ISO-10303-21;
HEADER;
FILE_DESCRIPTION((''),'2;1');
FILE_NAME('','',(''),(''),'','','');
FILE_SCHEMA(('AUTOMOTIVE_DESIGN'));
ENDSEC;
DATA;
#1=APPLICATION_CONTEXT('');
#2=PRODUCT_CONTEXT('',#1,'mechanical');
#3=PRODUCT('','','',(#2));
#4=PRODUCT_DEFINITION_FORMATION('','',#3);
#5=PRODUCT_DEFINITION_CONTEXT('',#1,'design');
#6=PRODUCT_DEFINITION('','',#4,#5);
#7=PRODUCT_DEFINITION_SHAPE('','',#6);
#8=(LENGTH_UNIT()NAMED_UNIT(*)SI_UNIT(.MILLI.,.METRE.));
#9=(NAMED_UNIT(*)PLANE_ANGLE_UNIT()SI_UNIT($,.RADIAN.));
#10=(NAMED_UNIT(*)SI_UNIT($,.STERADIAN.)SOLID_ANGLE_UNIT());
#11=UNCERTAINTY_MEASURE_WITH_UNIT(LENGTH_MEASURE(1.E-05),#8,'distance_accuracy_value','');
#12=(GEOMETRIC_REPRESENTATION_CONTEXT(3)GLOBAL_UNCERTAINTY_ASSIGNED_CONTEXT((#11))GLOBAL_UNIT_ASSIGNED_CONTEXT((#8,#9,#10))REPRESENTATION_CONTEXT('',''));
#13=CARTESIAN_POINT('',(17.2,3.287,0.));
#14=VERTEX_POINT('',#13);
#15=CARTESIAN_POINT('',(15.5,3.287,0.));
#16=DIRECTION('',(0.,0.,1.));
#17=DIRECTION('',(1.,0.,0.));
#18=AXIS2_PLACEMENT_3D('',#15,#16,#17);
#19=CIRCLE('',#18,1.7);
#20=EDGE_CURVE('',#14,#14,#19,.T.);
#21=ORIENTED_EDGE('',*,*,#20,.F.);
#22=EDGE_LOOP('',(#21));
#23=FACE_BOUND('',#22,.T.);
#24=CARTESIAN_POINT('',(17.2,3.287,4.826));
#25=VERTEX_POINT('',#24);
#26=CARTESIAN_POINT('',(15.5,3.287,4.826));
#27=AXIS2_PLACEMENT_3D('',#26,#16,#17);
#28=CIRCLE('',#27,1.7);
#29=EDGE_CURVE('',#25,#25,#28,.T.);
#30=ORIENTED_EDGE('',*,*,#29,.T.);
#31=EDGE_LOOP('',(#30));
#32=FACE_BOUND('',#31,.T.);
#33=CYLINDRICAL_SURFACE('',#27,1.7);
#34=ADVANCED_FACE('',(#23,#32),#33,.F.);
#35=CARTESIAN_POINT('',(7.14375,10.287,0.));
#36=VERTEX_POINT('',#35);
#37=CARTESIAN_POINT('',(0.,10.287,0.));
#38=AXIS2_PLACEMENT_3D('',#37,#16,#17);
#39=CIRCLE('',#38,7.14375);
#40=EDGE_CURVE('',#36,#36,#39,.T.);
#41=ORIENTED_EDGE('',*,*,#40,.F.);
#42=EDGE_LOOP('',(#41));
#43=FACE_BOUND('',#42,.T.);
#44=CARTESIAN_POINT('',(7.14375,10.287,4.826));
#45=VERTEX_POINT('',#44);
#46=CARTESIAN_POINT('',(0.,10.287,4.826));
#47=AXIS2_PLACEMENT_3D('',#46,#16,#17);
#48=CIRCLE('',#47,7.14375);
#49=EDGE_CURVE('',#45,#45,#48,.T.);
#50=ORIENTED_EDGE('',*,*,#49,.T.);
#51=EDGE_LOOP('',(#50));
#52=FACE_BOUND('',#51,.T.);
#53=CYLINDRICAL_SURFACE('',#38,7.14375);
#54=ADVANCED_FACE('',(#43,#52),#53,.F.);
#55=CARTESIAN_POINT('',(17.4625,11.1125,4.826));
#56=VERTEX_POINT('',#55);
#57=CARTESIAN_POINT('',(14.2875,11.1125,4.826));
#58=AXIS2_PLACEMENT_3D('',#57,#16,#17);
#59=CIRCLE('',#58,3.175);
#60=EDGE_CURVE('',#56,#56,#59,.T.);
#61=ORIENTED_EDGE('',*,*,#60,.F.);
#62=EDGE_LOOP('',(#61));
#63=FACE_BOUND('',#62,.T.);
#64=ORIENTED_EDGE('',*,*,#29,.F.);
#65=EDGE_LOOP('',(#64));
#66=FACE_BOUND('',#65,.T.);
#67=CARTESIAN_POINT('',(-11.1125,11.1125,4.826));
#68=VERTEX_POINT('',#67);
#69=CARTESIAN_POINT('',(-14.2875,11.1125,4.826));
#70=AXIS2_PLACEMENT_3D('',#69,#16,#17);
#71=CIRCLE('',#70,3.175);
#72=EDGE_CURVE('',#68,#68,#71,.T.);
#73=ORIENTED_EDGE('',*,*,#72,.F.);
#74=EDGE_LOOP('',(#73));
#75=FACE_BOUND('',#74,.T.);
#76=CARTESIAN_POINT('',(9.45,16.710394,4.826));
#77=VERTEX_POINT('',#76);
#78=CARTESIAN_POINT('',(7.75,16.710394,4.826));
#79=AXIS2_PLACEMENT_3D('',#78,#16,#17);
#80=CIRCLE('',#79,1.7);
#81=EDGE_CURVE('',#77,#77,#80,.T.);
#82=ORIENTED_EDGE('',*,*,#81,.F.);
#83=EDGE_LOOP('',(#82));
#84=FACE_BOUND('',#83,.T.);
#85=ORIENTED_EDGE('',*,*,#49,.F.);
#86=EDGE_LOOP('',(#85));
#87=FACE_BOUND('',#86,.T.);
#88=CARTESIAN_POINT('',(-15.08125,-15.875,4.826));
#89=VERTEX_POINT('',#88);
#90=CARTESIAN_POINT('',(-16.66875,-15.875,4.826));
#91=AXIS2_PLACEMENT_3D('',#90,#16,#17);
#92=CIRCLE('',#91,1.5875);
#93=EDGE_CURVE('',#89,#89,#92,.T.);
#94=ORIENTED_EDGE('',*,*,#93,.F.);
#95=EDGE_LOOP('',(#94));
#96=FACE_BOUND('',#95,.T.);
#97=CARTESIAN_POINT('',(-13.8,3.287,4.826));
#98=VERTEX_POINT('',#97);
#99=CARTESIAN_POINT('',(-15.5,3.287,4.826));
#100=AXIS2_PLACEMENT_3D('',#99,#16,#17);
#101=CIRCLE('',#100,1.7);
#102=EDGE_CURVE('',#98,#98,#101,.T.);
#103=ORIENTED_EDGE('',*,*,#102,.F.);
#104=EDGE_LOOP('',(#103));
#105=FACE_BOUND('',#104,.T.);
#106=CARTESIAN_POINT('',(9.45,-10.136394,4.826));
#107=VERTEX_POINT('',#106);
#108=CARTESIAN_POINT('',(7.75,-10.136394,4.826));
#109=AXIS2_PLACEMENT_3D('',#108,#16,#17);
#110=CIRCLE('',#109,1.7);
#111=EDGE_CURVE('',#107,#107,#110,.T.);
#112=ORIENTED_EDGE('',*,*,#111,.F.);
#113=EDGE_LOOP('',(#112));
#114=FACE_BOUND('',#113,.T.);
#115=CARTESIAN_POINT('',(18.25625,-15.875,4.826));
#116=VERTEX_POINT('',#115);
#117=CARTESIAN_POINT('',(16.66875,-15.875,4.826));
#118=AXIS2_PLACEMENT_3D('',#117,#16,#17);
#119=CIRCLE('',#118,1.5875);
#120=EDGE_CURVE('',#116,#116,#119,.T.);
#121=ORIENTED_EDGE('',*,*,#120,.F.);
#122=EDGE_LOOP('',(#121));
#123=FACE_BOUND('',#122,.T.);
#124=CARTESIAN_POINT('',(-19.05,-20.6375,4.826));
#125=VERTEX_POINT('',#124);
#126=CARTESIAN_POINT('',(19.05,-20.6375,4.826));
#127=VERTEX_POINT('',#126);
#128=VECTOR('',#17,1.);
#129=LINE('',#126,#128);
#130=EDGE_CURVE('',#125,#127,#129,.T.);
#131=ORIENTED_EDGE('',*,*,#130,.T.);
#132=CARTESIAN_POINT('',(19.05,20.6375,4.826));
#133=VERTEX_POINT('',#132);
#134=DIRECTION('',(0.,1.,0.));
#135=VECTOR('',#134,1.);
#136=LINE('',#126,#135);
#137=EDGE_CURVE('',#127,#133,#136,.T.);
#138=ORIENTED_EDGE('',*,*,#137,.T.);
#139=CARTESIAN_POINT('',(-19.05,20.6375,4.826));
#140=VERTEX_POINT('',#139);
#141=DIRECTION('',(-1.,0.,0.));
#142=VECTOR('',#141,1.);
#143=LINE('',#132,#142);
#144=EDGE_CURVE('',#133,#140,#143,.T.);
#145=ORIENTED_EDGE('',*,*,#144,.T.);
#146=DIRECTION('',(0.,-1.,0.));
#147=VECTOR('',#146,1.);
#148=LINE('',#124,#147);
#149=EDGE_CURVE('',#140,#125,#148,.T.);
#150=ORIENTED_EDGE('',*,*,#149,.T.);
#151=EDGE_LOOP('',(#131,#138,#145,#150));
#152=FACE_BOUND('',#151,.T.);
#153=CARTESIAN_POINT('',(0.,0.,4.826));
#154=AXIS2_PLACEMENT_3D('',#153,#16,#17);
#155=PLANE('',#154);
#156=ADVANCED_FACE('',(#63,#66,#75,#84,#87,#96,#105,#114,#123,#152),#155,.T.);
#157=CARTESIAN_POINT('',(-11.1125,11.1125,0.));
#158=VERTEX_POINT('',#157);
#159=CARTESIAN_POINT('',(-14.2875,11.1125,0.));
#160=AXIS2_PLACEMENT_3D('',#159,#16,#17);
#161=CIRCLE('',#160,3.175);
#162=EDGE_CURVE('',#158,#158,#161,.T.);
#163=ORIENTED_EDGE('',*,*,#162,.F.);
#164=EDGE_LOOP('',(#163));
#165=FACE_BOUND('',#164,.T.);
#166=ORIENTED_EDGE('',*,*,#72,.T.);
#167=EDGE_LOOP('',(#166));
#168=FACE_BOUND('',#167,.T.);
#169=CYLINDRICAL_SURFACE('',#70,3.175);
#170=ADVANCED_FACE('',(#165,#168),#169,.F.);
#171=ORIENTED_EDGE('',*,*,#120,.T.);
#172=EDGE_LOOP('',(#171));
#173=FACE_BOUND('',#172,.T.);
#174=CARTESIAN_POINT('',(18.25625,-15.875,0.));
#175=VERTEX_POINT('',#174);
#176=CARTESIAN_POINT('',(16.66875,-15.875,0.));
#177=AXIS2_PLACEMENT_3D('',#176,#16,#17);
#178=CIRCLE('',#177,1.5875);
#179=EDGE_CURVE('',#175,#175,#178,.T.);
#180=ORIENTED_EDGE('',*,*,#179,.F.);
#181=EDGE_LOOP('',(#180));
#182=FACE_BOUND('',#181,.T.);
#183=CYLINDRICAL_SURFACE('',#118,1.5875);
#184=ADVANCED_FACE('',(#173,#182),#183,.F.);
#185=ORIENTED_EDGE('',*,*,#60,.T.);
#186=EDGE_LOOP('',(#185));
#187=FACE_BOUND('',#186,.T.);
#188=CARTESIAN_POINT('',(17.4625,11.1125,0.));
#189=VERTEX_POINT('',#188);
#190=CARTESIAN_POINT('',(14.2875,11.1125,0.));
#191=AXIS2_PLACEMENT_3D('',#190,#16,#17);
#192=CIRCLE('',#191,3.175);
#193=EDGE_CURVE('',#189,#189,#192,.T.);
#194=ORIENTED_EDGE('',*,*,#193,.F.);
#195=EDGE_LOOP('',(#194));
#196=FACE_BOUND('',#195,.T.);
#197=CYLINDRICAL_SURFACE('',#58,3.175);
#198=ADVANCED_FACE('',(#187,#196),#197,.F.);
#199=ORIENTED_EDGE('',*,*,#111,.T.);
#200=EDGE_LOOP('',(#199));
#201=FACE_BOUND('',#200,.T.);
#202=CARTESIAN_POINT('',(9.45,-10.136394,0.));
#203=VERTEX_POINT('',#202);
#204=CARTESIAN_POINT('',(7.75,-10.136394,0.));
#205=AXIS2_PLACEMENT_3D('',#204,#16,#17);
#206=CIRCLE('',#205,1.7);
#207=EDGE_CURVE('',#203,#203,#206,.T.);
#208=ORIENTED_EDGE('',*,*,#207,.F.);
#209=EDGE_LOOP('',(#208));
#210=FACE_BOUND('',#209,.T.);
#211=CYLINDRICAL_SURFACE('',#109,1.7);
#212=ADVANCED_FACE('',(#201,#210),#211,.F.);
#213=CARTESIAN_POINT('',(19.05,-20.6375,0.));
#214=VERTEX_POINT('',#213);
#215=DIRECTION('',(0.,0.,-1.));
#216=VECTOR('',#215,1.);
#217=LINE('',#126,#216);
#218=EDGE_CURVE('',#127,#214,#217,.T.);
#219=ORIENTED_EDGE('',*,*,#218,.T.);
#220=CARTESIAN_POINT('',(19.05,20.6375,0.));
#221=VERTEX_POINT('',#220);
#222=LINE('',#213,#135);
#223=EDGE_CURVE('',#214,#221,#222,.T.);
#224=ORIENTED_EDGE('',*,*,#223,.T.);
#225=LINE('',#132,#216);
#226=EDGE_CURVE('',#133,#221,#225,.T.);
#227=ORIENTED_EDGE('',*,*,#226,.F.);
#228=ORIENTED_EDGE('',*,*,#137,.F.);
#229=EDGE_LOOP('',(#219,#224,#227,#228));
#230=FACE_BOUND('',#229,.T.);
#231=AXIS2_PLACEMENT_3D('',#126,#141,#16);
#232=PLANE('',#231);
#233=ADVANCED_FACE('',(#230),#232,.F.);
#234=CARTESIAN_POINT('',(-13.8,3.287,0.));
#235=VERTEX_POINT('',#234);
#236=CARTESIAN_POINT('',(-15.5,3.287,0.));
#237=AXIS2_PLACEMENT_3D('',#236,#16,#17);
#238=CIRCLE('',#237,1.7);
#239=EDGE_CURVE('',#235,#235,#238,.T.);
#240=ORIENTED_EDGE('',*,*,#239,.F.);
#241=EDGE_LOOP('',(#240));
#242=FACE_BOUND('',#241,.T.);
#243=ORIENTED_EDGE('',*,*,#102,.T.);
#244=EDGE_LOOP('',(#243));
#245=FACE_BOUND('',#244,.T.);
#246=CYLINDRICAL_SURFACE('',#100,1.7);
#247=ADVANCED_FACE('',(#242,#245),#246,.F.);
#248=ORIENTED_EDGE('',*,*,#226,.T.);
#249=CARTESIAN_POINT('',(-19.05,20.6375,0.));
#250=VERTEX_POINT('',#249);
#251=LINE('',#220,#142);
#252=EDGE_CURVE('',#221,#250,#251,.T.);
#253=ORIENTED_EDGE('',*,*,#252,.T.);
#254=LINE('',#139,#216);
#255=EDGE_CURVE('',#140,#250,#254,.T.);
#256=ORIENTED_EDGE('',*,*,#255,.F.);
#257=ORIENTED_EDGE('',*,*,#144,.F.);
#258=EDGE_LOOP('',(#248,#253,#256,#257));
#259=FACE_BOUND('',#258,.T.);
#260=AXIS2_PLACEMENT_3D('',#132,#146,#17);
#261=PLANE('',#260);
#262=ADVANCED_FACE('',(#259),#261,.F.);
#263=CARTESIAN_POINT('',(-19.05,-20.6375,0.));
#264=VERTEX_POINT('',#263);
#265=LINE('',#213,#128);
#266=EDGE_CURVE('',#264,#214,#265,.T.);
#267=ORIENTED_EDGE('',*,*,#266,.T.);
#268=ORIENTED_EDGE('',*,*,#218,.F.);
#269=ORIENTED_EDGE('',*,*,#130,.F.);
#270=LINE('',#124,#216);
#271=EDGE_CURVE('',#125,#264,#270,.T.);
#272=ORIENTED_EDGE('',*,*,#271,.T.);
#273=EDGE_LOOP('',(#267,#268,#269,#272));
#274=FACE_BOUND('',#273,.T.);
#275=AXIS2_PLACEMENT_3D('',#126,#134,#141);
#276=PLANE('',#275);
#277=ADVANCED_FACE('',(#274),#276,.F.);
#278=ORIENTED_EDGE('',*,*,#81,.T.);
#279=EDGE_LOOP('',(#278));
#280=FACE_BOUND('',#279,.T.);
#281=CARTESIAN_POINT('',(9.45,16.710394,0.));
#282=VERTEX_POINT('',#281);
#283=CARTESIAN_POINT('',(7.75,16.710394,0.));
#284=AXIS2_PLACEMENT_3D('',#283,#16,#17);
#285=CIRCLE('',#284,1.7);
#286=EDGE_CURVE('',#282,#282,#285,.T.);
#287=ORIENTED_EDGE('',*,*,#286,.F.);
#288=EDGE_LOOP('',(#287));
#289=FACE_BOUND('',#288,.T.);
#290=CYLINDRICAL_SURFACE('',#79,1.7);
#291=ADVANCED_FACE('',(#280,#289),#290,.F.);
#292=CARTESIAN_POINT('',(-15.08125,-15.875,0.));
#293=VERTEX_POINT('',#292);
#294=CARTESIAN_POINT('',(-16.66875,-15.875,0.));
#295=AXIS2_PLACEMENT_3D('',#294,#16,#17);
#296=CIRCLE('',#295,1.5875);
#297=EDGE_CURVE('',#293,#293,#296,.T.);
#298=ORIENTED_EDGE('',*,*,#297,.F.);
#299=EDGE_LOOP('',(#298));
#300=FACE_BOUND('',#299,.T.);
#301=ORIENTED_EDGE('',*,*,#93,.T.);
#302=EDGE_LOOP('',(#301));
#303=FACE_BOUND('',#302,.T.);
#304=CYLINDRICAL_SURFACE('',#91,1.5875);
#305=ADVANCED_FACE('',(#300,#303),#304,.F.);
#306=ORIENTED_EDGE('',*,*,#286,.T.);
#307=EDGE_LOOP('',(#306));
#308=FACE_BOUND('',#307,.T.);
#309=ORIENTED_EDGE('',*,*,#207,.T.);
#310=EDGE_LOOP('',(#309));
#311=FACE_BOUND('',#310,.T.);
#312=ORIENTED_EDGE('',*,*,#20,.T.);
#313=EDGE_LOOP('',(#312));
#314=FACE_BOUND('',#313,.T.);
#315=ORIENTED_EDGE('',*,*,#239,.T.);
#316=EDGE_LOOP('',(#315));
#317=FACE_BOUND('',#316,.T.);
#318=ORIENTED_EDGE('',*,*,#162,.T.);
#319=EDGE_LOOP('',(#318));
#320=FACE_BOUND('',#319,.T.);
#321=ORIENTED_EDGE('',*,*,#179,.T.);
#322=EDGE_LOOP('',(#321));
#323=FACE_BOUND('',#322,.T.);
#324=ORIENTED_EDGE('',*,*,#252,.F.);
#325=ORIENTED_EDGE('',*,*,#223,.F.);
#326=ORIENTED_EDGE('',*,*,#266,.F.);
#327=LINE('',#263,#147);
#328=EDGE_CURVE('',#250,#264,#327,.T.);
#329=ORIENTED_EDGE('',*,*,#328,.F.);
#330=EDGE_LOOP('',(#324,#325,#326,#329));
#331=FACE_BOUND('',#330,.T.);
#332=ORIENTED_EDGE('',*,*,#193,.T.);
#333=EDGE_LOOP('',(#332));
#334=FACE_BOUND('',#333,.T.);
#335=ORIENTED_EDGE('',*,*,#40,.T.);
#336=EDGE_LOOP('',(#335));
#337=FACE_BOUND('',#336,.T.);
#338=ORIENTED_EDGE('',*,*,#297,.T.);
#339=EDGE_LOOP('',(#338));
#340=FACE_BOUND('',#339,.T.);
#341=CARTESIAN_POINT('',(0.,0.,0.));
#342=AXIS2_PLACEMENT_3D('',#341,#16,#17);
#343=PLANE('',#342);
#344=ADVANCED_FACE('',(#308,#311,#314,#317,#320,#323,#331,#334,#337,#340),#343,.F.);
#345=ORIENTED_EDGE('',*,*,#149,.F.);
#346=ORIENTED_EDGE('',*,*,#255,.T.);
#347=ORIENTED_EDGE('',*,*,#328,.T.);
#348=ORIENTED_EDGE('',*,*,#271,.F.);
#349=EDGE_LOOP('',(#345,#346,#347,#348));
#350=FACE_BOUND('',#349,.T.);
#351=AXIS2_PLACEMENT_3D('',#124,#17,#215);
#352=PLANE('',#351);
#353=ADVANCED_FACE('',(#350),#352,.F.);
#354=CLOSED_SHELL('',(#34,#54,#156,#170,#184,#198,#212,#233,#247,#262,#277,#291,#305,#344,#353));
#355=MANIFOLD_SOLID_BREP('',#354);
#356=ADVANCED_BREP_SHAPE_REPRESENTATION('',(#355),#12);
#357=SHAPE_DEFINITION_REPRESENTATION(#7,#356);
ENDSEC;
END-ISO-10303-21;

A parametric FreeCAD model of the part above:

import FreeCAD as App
import Part
import Sketcher
Q = App.Units.Quantity


def add_polygon(sketch, points):
    """Adds a closed chain of lines whose ends are joined by coincident constraints."""
    first, n = sketch.GeometryCount, len(points)
    for a, b in zip(points, points[1:] + points[:1]):
        sketch.addGeometry(Part.LineSegment(App.Vector(*a, 0), App.Vector(*b, 0)), False)
    for i in range(n):
        sketch.addConstraint(Sketcher.Constraint("Coincident", first + i, 2, first + (i + 1) % n, 1))

doc = App.newDocument("Part")
body = doc.addObject("PartDesign::Body", "Body")

# Sketch on XY plane
sketch1 = body.newObject("Sketcher::SketchObject", "Sketch")
sketch1.AttachmentSupport = (doc.getObject("XY_Plane"), [""])
sketch1.MapMode = "FlatFace"
add_polygon(sketch1, [(-19, 21), (-19, -21), (19, -21), (19, 21)])  # lines 0-3
sketch1.addConstraint(Sketcher.Constraint("Vertical", 0))
sketch1.addConstraint(Sketcher.Constraint("Horizontal", 1))
sketch1.addConstraint(Sketcher.Constraint("Vertical", 2))
sketch1.addConstraint(Sketcher.Constraint("Horizontal", 3))
sketch1.addConstraint(Sketcher.Constraint("Symmetric", 0, 2, 2, 2, -1, 1))
sketch1.addConstraint(Sketcher.Constraint("DistanceX", 1, 1, 1, 2, Q("1.5 in")))
sketch1.addConstraint(Sketcher.Constraint("DistanceY", 0, 2, 0, 1, Q("1.625 in")))
pad1 = body.newObject("PartDesign::Pad", "Pad")
pad1.Profile = sketch1
pad1.Length = Q("0.19 in")

# Sketch on XY plane
sketch2 = body.newObject("Sketcher::SketchObject", "Sketch001")
sketch2.AttachmentSupport = (doc.getObject("XY_Plane"), [""])
sketch2.MapMode = "FlatFace"
sketch2.AttachmentOffset = App.Placement(App.Vector(0, 0, 0.19 * 25.4), App.Rotation())
sketch2.addGeometry(Part.Circle(App.Vector(0, 10, 0), App.Vector(0, 0, 1), 7), False)
sketch2.addConstraint(Sketcher.Constraint("PointOnObject", 0, 3, -2))
sketch2.addConstraint(Sketcher.Constraint("Diameter", 0, Q("0.5625 in")))
sketch2.addConstraint(Sketcher.Constraint("DistanceY", -1, 1, 0, 3, Q("0.405 in")))
pocket1 = body.newObject("PartDesign::Pocket", "Pocket")
pocket1.Profile = sketch2
pocket1.Type = "ThroughAll"

# Sketch on XY plane
sketch3 = body.newObject("Sketcher::SketchObject", "Sketch002")
sketch3.AttachmentSupport = (doc.getObject("XY_Plane"), [""])
sketch3.MapMode = "FlatFace"
sketch3.AttachmentOffset = App.Placement(App.Vector(0, 0, 0.19 * 25.4), App.Rotation())
sketch3.addGeometry(Part.Circle(App.Vector(-15.5, 3.3, 0), App.Vector(0, 0, 1), 1.7), False)
sketch3.addGeometry(Part.Circle(App.Vector(7.8, 16.7, 0), App.Vector(0, 0, 1), 1.7), False)
sketch3.addGeometry(Part.Circle(App.Vector(15.5, 3.3, 0), App.Vector(0, 0, 1), 1.7), False)
sketch3.addGeometry(Part.Circle(App.Vector(7.8, -10.1, 0), App.Vector(0, 0, 1), 1.7), False)
sketch3.addConstraint(Sketcher.Constraint("Equal", 0, 1))
sketch3.addConstraint(Sketcher.Constraint("Equal", 1, 2))
sketch3.addConstraint(Sketcher.Constraint("Equal", 2, 3))
sketch3.addConstraint(Sketcher.Constraint("Symmetric", 0, 3, 2, 3, -2))
sketch3.addConstraint(Sketcher.Constraint("Vertical", 1, 3, 3, 3))
sketch3.addConstraint(Sketcher.Constraint("Diameter", 0, 3.4))
sketch3.addConstraint(Sketcher.Constraint("DistanceX", 0, 3, -1, 1, 15.5))
sketch3.addConstraint(Sketcher.Constraint("DistanceY", -1, 1, 0, 3, 3.287))
sketch3.addConstraint(Sketcher.Constraint("DistanceX", -1, 1, 1, 3, 7.75))
sketch3.addConstraint(Sketcher.Constraint("DistanceY", -1, 1, 1, 3, 16.710394))
sketch3.addConstraint(Sketcher.Constraint("DistanceY", 3, 3, -1, 1, 10.136394))
doc.recompute()
hole = body.newObject("PartDesign::Hole", "Hole")
hole.Profile = sketch3
hole.ThreadType = "None"
hole.Diameter = 3.4
hole.DepthType = "ThroughAll"

# Sketch on XY plane
sketch4 = body.newObject("Sketcher::SketchObject", "Sketch003")
sketch4.AttachmentSupport = (doc.getObject("XY_Plane"), [""])
sketch4.MapMode = "FlatFace"
sketch4.AttachmentOffset = App.Placement(App.Vector(0, 0, 0.19 * 25.4), App.Rotation())
sketch4.addGeometry(Part.Circle(App.Vector(-14.3, 11.1, 0), App.Vector(0, 0, 1), 3.2), False)
sketch4.addGeometry(Part.Circle(App.Vector(14.3, 11.1, 0), App.Vector(0, 0, 1), 3.2), False)
sketch4.addConstraint(Sketcher.Constraint("Equal", 0, 1))
sketch4.addConstraint(Sketcher.Constraint("Symmetric", 0, 3, 1, 3, -2))
sketch4.addConstraint(Sketcher.Constraint("Diameter", 0, Q("0.25 in")))
sketch4.addConstraint(Sketcher.Constraint("DistanceX", 0, 3, -1, 1, Q("0.5625 in")))
sketch4.addConstraint(Sketcher.Constraint("DistanceY", -1, 1, 0, 3, Q("0.4375 in")))
doc.recompute()
hole2 = body.newObject("PartDesign::Hole", "Hole001")
hole2.Profile = sketch4
hole2.ThreadType = "None"
hole2.Diameter = Q("0.25 in")
hole2.DepthType = "ThroughAll"

# Sketch on XY plane
sketch5 = body.newObject("Sketcher::SketchObject", "Sketch004")
sketch5.AttachmentSupport = (doc.getObject("XY_Plane"), [""])
sketch5.MapMode = "FlatFace"
sketch5.AttachmentOffset = App.Placement(App.Vector(0, 0, 0.19 * 25.4), App.Rotation())
sketch5.addGeometry(Part.Circle(App.Vector(-16.7, -15.9, 0), App.Vector(0, 0, 1), 1.6), False)
sketch5.addGeometry(Part.Circle(App.Vector(16.7, -15.9, 0), App.Vector(0, 0, 1), 1.6), False)
sketch5.addConstraint(Sketcher.Constraint("Equal", 0, 1))
sketch5.addConstraint(Sketcher.Constraint("Symmetric", 0, 3, 1, 3, -2))
sketch5.addConstraint(Sketcher.Constraint("Diameter", 0, Q("0.125 in")))
sketch5.addConstraint(Sketcher.Constraint("DistanceX", 0, 3, -1, 1, Q("0.65625 in")))
sketch5.addConstraint(Sketcher.Constraint("DistanceY", 0, 3, -1, 1, Q("0.625 in")))
doc.recompute()
hole3 = body.newObject("PartDesign::Hole", "Hole002")
hole3.Profile = sketch5
hole3.ThreadType = "None"
hole3.Diameter = Q("0.125 in")
hole3.DepthType = "ThroughAll"

doc.recompute()
